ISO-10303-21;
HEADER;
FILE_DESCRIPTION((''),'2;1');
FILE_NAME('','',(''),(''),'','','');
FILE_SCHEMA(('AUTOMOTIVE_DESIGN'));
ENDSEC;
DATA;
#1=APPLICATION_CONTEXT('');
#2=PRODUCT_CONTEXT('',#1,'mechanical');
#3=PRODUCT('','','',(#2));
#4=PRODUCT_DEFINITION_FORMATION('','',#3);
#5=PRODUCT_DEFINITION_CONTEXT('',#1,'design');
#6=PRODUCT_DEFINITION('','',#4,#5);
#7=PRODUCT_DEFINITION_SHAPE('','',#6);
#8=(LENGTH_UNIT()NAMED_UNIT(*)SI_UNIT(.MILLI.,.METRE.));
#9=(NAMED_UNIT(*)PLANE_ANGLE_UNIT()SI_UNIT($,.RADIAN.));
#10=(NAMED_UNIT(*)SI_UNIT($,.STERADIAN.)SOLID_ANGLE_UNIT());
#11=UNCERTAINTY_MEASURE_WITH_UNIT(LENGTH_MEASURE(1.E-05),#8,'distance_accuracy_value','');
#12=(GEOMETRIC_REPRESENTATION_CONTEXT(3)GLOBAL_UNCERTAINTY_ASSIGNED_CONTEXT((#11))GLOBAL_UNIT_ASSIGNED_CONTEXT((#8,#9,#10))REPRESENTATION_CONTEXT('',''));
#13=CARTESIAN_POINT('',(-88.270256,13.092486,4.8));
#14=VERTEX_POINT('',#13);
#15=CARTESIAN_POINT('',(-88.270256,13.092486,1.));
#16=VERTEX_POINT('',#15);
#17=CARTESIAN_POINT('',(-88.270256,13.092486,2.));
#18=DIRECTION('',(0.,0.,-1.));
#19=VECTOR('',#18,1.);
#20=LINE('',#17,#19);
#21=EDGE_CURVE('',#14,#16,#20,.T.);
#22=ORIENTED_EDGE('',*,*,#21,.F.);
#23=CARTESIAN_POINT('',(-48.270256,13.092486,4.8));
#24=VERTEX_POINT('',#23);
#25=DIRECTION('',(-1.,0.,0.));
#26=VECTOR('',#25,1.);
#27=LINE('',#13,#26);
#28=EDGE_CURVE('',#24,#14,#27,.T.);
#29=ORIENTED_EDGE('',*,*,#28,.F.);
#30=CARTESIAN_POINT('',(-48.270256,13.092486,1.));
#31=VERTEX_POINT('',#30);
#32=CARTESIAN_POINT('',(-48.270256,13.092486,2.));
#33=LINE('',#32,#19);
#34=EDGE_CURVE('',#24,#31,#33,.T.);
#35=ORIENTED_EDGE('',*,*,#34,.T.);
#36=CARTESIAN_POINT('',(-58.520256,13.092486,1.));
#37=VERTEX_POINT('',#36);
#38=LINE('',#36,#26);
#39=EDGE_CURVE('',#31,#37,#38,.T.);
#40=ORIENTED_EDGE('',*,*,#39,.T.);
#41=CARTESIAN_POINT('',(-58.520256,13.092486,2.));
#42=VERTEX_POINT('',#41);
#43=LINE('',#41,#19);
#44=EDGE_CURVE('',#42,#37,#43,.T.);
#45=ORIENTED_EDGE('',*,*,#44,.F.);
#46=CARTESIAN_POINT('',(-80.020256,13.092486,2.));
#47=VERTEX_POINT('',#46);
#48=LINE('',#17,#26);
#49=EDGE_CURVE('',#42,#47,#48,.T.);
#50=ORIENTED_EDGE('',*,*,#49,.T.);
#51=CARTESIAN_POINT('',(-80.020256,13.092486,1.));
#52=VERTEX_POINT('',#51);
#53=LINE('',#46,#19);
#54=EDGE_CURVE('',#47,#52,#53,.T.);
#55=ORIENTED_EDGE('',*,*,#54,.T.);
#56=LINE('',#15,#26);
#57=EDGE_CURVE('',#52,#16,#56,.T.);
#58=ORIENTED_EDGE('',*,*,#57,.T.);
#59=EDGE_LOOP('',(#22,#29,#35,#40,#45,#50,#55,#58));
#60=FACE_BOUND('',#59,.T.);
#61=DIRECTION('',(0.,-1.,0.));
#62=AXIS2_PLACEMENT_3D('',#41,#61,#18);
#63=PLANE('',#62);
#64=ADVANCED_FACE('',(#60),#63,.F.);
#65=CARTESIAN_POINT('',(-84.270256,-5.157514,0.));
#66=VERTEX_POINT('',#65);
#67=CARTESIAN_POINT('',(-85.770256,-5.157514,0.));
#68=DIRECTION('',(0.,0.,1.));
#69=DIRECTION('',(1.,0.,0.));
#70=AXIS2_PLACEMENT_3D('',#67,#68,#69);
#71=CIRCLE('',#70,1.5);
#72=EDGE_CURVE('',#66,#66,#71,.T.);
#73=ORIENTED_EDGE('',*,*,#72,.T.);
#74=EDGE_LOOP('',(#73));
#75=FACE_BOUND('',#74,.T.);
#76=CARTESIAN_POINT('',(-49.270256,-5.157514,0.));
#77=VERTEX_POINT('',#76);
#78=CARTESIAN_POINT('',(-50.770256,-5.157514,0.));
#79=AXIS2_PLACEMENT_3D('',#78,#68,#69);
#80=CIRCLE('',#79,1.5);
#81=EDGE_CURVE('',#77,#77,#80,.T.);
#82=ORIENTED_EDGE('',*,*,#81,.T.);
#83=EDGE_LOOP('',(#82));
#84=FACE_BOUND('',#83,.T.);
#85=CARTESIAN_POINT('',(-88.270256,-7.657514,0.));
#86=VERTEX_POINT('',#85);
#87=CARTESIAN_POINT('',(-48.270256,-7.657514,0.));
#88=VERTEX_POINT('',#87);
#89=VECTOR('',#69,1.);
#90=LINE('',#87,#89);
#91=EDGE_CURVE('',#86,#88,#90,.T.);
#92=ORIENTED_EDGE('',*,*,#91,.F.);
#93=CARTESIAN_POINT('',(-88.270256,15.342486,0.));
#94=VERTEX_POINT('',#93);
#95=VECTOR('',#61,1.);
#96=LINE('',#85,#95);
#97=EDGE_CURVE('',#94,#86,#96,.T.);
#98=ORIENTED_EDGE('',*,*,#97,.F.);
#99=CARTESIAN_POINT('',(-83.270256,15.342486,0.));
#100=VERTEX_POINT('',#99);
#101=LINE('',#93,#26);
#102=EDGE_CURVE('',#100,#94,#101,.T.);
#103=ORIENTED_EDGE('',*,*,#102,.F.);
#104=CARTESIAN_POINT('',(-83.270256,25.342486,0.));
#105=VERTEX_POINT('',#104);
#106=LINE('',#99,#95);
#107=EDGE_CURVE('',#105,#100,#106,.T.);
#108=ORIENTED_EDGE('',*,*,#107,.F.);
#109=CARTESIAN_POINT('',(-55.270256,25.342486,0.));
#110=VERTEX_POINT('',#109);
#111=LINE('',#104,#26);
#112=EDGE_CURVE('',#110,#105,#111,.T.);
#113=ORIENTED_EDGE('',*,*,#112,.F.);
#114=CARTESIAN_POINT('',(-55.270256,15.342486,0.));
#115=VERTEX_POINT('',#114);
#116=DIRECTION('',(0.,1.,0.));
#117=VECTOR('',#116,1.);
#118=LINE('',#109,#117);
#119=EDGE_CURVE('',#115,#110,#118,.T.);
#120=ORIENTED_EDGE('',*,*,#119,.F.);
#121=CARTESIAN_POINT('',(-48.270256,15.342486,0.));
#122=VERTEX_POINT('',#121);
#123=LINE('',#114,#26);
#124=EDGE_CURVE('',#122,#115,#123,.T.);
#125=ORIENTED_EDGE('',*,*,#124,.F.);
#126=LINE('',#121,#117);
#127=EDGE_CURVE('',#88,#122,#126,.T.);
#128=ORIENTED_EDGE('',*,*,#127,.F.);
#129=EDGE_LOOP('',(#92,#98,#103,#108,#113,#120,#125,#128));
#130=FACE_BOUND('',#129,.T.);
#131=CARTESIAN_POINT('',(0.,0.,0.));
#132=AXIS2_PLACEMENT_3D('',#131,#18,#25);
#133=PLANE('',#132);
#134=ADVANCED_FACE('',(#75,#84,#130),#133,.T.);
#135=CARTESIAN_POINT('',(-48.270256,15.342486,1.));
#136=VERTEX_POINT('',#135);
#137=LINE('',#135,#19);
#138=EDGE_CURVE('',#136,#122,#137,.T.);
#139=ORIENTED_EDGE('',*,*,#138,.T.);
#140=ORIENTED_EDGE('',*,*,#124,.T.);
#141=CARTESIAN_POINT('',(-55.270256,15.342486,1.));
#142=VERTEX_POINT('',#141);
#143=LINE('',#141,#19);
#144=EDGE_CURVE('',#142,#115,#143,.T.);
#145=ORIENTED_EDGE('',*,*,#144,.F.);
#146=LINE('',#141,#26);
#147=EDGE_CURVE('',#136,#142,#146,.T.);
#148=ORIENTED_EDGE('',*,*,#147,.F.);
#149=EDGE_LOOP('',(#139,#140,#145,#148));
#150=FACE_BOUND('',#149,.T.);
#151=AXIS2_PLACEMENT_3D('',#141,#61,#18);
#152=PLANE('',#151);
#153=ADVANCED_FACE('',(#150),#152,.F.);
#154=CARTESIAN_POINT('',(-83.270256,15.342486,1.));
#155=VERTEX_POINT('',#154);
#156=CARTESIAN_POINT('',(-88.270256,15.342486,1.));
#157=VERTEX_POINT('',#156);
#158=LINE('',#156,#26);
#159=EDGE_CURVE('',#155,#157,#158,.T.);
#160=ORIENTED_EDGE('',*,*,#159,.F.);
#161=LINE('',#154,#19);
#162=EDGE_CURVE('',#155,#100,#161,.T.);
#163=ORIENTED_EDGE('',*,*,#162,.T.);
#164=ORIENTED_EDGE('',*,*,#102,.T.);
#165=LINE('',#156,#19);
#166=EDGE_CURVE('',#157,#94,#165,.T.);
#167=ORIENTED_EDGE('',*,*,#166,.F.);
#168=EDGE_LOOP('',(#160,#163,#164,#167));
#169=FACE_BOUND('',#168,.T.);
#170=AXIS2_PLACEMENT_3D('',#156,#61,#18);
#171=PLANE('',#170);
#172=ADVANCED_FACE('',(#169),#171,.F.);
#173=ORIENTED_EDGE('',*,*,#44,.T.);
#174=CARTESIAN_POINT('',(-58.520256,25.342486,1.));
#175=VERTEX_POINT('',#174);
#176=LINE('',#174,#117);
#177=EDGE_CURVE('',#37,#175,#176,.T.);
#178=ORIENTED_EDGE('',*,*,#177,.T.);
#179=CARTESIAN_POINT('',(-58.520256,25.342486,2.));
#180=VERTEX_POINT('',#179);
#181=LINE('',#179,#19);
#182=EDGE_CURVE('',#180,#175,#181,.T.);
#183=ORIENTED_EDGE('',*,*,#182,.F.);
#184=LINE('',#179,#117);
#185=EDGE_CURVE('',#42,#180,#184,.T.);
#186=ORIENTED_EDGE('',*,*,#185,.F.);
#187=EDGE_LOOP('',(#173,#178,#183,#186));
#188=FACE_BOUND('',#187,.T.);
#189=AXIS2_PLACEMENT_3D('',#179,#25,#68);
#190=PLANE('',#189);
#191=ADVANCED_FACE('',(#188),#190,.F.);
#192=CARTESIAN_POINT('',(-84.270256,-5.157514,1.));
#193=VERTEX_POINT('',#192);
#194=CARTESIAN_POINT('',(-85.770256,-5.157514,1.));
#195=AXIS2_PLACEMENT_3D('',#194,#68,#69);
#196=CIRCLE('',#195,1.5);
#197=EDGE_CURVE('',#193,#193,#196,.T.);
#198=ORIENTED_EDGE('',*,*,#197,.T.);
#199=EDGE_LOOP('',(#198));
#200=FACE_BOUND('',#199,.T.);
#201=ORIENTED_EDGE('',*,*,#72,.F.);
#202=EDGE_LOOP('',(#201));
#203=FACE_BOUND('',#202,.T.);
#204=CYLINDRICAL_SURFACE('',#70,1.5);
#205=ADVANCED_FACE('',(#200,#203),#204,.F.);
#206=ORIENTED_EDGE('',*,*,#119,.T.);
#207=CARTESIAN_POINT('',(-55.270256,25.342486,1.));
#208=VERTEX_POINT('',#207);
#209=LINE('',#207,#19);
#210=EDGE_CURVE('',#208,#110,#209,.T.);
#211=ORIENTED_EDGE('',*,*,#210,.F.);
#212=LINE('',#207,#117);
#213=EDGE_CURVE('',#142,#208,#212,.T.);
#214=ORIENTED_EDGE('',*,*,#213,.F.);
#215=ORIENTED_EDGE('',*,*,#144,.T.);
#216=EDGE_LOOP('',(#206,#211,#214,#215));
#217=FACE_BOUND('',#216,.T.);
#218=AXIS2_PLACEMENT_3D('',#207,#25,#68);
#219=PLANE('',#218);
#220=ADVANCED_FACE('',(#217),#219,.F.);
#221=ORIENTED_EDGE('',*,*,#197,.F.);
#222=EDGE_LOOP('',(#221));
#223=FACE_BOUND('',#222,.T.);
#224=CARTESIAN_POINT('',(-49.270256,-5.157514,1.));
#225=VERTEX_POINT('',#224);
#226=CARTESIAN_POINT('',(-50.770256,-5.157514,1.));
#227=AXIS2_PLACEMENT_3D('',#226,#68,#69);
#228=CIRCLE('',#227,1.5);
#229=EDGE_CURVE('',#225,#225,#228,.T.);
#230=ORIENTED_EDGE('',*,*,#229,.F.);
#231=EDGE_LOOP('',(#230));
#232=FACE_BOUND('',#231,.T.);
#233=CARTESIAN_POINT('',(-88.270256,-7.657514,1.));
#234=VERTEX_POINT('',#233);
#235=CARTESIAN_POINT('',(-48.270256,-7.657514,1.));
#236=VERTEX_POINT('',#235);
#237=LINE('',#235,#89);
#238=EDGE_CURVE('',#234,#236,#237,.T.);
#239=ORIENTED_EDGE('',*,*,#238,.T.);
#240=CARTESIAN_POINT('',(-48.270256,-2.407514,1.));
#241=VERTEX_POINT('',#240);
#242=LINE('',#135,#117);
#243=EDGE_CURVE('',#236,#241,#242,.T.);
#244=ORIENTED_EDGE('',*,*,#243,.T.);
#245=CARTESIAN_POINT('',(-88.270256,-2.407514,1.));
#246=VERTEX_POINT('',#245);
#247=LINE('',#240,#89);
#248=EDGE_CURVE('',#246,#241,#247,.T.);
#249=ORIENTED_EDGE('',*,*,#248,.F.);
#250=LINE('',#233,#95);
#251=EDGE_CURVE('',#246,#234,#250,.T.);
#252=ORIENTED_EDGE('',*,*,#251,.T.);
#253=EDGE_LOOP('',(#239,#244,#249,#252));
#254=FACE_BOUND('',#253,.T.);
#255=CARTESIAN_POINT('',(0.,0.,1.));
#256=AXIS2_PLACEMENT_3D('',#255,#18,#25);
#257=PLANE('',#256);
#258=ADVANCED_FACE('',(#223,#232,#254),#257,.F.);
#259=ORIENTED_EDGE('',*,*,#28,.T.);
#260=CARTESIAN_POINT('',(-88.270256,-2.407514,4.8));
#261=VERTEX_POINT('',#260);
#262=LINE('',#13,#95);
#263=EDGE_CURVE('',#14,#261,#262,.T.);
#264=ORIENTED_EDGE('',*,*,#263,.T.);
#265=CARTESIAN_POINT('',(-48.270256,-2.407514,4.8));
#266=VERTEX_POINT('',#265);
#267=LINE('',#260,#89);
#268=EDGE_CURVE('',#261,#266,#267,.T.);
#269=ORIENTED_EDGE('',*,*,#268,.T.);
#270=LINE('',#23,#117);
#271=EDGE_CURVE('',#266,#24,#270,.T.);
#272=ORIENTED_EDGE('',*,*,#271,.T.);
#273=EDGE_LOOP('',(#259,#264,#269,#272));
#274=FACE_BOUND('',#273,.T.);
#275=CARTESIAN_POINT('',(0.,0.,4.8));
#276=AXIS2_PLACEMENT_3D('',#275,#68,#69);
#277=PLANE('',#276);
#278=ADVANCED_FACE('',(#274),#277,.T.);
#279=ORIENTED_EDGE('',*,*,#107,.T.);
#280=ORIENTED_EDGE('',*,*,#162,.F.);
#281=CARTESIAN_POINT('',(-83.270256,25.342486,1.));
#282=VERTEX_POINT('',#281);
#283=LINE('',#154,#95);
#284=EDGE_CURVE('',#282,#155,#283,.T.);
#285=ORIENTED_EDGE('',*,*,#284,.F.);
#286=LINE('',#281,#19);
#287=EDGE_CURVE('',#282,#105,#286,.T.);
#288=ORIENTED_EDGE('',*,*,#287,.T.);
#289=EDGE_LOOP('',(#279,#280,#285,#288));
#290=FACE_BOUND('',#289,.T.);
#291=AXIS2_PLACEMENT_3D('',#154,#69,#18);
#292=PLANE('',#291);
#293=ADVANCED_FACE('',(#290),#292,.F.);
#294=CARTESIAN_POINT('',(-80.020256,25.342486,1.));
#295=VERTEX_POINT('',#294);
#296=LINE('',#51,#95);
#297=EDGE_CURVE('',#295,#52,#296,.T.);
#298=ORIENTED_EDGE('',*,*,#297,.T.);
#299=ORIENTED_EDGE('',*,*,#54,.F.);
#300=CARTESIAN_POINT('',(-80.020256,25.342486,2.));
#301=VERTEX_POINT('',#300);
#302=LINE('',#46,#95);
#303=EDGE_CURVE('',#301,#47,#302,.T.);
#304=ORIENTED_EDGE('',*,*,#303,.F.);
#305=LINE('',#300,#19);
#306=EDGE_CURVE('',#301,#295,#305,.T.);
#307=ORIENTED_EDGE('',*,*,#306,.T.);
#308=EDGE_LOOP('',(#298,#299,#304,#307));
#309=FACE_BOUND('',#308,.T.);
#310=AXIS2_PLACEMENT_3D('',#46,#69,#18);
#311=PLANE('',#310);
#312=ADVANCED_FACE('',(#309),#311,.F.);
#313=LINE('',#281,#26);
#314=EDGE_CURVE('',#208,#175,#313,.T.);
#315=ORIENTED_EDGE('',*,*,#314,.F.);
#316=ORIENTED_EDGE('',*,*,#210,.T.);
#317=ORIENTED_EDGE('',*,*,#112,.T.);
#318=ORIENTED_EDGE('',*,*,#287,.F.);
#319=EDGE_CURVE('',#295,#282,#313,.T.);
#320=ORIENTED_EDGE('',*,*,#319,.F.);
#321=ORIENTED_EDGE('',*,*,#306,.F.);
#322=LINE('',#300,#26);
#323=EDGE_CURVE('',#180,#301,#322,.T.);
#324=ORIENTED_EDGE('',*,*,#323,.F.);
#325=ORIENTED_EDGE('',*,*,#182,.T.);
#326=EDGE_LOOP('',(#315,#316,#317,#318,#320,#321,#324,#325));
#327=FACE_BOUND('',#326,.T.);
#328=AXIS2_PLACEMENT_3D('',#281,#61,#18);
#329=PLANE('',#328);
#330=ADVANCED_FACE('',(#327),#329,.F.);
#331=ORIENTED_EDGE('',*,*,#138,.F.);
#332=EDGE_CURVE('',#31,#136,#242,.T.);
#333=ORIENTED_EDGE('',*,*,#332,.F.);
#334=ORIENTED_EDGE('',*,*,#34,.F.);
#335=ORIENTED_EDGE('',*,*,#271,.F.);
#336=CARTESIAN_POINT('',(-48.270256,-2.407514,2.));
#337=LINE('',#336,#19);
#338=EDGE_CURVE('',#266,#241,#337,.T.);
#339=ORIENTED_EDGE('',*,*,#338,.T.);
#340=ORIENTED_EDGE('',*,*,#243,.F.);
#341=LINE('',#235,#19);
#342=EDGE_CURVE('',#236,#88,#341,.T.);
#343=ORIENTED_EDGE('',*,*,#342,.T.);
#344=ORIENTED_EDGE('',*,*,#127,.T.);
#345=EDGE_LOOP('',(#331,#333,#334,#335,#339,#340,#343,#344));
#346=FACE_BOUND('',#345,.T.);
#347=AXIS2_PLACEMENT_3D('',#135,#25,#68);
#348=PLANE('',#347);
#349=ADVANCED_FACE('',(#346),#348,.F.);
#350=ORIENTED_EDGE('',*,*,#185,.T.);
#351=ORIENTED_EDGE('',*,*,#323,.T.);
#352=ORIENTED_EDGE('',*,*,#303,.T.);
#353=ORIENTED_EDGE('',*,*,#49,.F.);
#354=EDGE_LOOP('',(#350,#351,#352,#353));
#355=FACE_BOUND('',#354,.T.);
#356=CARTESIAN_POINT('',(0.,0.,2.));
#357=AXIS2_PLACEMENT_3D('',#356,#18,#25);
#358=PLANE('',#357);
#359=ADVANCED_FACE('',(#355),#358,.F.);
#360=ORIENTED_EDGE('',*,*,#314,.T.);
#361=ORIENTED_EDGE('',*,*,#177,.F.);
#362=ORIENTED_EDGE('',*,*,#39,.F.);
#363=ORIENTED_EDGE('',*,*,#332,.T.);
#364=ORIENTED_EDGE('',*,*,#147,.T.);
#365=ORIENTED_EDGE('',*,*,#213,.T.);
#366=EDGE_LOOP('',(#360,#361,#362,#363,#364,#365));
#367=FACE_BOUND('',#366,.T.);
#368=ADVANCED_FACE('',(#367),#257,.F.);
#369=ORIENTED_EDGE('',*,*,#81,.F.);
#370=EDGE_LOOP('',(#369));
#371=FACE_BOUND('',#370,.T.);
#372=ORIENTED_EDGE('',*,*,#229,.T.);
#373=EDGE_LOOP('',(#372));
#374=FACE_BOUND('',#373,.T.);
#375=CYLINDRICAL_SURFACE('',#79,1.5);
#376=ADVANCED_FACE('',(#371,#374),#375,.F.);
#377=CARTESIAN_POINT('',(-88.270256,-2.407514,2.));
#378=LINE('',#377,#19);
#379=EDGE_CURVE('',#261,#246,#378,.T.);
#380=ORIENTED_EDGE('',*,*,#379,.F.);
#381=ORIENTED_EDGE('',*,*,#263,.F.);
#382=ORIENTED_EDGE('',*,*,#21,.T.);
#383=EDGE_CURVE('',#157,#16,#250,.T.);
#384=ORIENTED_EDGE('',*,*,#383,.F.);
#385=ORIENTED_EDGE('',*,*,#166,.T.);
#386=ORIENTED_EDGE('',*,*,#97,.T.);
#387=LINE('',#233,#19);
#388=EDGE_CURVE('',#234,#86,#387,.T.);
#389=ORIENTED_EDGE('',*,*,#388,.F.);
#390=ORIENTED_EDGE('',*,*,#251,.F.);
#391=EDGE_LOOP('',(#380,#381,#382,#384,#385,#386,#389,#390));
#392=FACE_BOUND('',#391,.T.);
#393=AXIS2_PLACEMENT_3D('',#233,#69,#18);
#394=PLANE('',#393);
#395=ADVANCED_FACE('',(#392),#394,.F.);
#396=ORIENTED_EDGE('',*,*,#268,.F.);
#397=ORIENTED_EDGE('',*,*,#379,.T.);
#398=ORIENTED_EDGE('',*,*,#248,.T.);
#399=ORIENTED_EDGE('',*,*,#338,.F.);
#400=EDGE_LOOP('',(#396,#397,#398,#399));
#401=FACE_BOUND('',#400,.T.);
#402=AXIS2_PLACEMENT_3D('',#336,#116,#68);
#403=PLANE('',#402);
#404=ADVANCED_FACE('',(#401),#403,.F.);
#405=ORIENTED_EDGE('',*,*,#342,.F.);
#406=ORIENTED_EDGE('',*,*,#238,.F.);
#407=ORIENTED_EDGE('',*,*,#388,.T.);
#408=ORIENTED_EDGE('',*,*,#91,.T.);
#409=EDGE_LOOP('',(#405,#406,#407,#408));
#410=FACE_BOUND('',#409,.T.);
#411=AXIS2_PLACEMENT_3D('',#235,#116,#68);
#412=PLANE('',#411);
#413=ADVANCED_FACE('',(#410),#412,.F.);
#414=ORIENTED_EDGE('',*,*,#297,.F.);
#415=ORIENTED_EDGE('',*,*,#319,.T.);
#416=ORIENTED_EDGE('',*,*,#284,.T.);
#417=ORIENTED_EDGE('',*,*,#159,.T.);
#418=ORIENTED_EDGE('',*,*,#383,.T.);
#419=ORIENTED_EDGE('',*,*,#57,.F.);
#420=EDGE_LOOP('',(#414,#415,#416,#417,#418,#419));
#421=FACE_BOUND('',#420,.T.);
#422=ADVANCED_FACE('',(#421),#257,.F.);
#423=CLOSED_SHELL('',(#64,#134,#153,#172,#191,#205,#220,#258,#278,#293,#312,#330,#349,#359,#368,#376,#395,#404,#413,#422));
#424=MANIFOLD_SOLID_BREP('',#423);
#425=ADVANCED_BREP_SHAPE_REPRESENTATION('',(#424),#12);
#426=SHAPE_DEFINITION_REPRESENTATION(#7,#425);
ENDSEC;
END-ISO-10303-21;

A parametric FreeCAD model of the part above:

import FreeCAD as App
import Part
import Sketcher
Q = App.Units.Quantity


def add_polygon(sketch, points):
    """Adds a closed chain of lines whose ends are joined by coincident constraints."""
    first, n = sketch.GeometryCount, len(points)
    for a, b in zip(points, points[1:] + points[:1]):
        sketch.addGeometry(Part.LineSegment(App.Vector(*a, 0), App.Vector(*b, 0)), False)
    for i in range(n):
        sketch.addConstraint(Sketcher.Constraint("Coincident", first + i, 2, first + (i + 1) % n, 1))

doc = App.newDocument("Part")
body = doc.addObject("PartDesign::Body", "Body")

# Sketch on XY plane
sketch1 = body.newObject("Sketcher::SketchObject", "Sketch")
sketch1.AttachmentSupport = (doc.getObject("XY_Plane"), [""])
sketch1.MapMode = "FlatFace"
add_polygon(sketch1, [(-88, 15), (-88, -8), (-48, -8), (-48, 15), (-55, 15), (-55, 25), (-83, 25), (-83, 15)])  # lines 0-7
sketch1.addConstraint([
    Sketcher.Constraint("Vertical", 0),
    Sketcher.Constraint("Horizontal", 1),
    Sketcher.Constraint("Vertical", 2),
    Sketcher.Constraint("Horizontal", 3),
    Sketcher.Constraint("Vertical", 4),
    Sketcher.Constraint("Horizontal", 5),
    Sketcher.Constraint("Vertical", 6),
    Sketcher.Constraint("Horizontal", 7),
    Sketcher.Constraint("Horizontal", 3, 2, 6, 2),
    Sketcher.Constraint("DistanceX", 1, 1, 1, 2, Q("40 mm")),
    Sketcher.Constraint("DistanceX", 3, 2, 3, 1, Q("7 mm")),
    Sketcher.Constraint("DistanceX", 5, 2, 5, 1, Q("28 mm")),
    Sketcher.Constraint("DistanceY", 0, 2, 0, 1, Q("23 mm")),
    Sketcher.Constraint("DistanceY", 4, 1, 4, 2, Q("10 mm")),
    Sketcher.Constraint("DistanceX", 0, 2, -1, 1, Q("88.270256 mm")),
    Sketcher.Constraint("DistanceY", 0, 2, -1, 1, Q("7.657514 mm")),
])
pad1 = body.newObject("PartDesign::Pad", "Pad")
pad1.Profile = sketch1
pad1.Length = 1

# Sketch on XY plane
sketch2 = body.newObject("Sketcher::SketchObject", "Sketch001")
sketch2.AttachmentSupport = (doc.getObject("XY_Plane"), [""])
sketch2.MapMode = "FlatFace"
sketch2.AttachmentOffset = App.Placement(App.Vector(0, 0, 1), App.Rotation())
add_polygon(sketch2, [(-88, 13), (-88, -2), (-48, -2), (-48, 13), (-59, 13), (-59, 25), (-80, 25), (-80, 13)])  # lines 0-7
sketch2.addConstraint([
    Sketcher.Constraint("Vertical", 0),
    Sketcher.Constraint("Horizontal", 1),
    Sketcher.Constraint("Vertical", 2),
    Sketcher.Constraint("Horizontal", 3),
    Sketcher.Constraint("Vertical", 4),
    Sketcher.Constraint("Horizontal", 5),
    Sketcher.Constraint("Vertical", 6),
    Sketcher.Constraint("Horizontal", 7),
    Sketcher.Constraint("Horizontal", 3, 2, 6, 2),
    Sketcher.Constraint("DistanceX", 1, 1, 1, 2, Q("40 mm")),
    Sketcher.Constraint("DistanceX", 5, 2, 5, 1, Q("21.5 mm")),
    Sketcher.Constraint("DistanceY", 0, 2, 0, 1, Q("15.5 mm")),
    Sketcher.Constraint("DistanceX", 3, 2, 3, 1, Q("10.25 mm")),
    Sketcher.Constraint("DistanceY", 4, 1, 4, 2, Q("12.25 mm")),
    Sketcher.Constraint("DistanceX", 0, 2, -1, 1, Q("88.270256 mm")),
    Sketcher.Constraint("DistanceY", 0, 2, -1, 1, Q("2.407514 mm")),
])
pad2 = body.newObject("PartDesign::Pad", "Pad001")
pad2.Profile = sketch2
pad2.Length = 1

# Sketch on XY plane
sketch3 = body.newObject("Sketcher::SketchObject", "Sketch002")
sketch3.AttachmentSupport = (doc.getObject("XY_Plane"), [""])
sketch3.MapMode = "FlatFace"
sketch3.AttachmentOffset = App.Placement(App.Vector(0, 0, 2), App.Rotation())
add_polygon(sketch3, [(-88, 13), (-88, -2), (-48, -2), (-48, 13)])  # lines 0-3
sketch3.addConstraint([
    Sketcher.Constraint("Vertical", 0),
    Sketcher.Constraint("Horizontal", 1),
    Sketcher.Constraint("Vertical", 2),
    Sketcher.Constraint("Horizontal", 3),
    Sketcher.Constraint("DistanceX", 1, 1, 1, 2, Q("40 mm")),
    Sketcher.Constraint("DistanceY", 0, 2, 0, 1, Q("15.5 mm")),
    Sketcher.Constraint("DistanceX", 0, 2, -1, 1, Q("88.270256 mm")),
    Sketcher.Constraint("DistanceY", 0, 2, -1, 1, Q("2.407514 mm")),
])
pad3 = body.newObject("PartDesign::Pad", "Pad002")
pad3.Profile = sketch3
pad3.Length = 2.8

# Sketch on XY plane
sketch4 = body.newObject("Sketcher::SketchObject", "Sketch003")
sketch4.AttachmentSupport = (doc.getObject("XY_Plane"), [""])
sketch4.MapMode = "FlatFace"
sketch4.AttachmentOffset = App.Placement(App.Vector(0, 0, 1), App.Rotation())
sketch4.addGeometry([
    Part.Circle(App.Vector(-85.8, -5.2, 0), App.Vector(0, 0, 1), 1.5),
    Part.Circle(App.Vector(-50.8, -5.2, 0), App.Vector(0, 0, 1), 1.5),
], False)
sketch4.addConstraint([
    Sketcher.Constraint("Equal", 0, 1),
    Sketcher.Constraint("Horizontal", 0, 3, 1, 3),
    Sketcher.Constraint("Diameter", 0, Q("3 mm")),
    Sketcher.Constraint("DistanceX", 0, 3, 1, 3, Q("35 mm")),
    Sketcher.Constraint("DistanceX", 0, 3, -1, 1, Q("85.770256 mm")),
    Sketcher.Constraint("DistanceY", 0, 3, -1, 1, Q("5.157514 mm")),
])
pocket1 = body.newObject("PartDesign::Pocket", "Pocket")
pocket1.Profile = sketch4
pocket1.Length = 1

doc.recompute()
